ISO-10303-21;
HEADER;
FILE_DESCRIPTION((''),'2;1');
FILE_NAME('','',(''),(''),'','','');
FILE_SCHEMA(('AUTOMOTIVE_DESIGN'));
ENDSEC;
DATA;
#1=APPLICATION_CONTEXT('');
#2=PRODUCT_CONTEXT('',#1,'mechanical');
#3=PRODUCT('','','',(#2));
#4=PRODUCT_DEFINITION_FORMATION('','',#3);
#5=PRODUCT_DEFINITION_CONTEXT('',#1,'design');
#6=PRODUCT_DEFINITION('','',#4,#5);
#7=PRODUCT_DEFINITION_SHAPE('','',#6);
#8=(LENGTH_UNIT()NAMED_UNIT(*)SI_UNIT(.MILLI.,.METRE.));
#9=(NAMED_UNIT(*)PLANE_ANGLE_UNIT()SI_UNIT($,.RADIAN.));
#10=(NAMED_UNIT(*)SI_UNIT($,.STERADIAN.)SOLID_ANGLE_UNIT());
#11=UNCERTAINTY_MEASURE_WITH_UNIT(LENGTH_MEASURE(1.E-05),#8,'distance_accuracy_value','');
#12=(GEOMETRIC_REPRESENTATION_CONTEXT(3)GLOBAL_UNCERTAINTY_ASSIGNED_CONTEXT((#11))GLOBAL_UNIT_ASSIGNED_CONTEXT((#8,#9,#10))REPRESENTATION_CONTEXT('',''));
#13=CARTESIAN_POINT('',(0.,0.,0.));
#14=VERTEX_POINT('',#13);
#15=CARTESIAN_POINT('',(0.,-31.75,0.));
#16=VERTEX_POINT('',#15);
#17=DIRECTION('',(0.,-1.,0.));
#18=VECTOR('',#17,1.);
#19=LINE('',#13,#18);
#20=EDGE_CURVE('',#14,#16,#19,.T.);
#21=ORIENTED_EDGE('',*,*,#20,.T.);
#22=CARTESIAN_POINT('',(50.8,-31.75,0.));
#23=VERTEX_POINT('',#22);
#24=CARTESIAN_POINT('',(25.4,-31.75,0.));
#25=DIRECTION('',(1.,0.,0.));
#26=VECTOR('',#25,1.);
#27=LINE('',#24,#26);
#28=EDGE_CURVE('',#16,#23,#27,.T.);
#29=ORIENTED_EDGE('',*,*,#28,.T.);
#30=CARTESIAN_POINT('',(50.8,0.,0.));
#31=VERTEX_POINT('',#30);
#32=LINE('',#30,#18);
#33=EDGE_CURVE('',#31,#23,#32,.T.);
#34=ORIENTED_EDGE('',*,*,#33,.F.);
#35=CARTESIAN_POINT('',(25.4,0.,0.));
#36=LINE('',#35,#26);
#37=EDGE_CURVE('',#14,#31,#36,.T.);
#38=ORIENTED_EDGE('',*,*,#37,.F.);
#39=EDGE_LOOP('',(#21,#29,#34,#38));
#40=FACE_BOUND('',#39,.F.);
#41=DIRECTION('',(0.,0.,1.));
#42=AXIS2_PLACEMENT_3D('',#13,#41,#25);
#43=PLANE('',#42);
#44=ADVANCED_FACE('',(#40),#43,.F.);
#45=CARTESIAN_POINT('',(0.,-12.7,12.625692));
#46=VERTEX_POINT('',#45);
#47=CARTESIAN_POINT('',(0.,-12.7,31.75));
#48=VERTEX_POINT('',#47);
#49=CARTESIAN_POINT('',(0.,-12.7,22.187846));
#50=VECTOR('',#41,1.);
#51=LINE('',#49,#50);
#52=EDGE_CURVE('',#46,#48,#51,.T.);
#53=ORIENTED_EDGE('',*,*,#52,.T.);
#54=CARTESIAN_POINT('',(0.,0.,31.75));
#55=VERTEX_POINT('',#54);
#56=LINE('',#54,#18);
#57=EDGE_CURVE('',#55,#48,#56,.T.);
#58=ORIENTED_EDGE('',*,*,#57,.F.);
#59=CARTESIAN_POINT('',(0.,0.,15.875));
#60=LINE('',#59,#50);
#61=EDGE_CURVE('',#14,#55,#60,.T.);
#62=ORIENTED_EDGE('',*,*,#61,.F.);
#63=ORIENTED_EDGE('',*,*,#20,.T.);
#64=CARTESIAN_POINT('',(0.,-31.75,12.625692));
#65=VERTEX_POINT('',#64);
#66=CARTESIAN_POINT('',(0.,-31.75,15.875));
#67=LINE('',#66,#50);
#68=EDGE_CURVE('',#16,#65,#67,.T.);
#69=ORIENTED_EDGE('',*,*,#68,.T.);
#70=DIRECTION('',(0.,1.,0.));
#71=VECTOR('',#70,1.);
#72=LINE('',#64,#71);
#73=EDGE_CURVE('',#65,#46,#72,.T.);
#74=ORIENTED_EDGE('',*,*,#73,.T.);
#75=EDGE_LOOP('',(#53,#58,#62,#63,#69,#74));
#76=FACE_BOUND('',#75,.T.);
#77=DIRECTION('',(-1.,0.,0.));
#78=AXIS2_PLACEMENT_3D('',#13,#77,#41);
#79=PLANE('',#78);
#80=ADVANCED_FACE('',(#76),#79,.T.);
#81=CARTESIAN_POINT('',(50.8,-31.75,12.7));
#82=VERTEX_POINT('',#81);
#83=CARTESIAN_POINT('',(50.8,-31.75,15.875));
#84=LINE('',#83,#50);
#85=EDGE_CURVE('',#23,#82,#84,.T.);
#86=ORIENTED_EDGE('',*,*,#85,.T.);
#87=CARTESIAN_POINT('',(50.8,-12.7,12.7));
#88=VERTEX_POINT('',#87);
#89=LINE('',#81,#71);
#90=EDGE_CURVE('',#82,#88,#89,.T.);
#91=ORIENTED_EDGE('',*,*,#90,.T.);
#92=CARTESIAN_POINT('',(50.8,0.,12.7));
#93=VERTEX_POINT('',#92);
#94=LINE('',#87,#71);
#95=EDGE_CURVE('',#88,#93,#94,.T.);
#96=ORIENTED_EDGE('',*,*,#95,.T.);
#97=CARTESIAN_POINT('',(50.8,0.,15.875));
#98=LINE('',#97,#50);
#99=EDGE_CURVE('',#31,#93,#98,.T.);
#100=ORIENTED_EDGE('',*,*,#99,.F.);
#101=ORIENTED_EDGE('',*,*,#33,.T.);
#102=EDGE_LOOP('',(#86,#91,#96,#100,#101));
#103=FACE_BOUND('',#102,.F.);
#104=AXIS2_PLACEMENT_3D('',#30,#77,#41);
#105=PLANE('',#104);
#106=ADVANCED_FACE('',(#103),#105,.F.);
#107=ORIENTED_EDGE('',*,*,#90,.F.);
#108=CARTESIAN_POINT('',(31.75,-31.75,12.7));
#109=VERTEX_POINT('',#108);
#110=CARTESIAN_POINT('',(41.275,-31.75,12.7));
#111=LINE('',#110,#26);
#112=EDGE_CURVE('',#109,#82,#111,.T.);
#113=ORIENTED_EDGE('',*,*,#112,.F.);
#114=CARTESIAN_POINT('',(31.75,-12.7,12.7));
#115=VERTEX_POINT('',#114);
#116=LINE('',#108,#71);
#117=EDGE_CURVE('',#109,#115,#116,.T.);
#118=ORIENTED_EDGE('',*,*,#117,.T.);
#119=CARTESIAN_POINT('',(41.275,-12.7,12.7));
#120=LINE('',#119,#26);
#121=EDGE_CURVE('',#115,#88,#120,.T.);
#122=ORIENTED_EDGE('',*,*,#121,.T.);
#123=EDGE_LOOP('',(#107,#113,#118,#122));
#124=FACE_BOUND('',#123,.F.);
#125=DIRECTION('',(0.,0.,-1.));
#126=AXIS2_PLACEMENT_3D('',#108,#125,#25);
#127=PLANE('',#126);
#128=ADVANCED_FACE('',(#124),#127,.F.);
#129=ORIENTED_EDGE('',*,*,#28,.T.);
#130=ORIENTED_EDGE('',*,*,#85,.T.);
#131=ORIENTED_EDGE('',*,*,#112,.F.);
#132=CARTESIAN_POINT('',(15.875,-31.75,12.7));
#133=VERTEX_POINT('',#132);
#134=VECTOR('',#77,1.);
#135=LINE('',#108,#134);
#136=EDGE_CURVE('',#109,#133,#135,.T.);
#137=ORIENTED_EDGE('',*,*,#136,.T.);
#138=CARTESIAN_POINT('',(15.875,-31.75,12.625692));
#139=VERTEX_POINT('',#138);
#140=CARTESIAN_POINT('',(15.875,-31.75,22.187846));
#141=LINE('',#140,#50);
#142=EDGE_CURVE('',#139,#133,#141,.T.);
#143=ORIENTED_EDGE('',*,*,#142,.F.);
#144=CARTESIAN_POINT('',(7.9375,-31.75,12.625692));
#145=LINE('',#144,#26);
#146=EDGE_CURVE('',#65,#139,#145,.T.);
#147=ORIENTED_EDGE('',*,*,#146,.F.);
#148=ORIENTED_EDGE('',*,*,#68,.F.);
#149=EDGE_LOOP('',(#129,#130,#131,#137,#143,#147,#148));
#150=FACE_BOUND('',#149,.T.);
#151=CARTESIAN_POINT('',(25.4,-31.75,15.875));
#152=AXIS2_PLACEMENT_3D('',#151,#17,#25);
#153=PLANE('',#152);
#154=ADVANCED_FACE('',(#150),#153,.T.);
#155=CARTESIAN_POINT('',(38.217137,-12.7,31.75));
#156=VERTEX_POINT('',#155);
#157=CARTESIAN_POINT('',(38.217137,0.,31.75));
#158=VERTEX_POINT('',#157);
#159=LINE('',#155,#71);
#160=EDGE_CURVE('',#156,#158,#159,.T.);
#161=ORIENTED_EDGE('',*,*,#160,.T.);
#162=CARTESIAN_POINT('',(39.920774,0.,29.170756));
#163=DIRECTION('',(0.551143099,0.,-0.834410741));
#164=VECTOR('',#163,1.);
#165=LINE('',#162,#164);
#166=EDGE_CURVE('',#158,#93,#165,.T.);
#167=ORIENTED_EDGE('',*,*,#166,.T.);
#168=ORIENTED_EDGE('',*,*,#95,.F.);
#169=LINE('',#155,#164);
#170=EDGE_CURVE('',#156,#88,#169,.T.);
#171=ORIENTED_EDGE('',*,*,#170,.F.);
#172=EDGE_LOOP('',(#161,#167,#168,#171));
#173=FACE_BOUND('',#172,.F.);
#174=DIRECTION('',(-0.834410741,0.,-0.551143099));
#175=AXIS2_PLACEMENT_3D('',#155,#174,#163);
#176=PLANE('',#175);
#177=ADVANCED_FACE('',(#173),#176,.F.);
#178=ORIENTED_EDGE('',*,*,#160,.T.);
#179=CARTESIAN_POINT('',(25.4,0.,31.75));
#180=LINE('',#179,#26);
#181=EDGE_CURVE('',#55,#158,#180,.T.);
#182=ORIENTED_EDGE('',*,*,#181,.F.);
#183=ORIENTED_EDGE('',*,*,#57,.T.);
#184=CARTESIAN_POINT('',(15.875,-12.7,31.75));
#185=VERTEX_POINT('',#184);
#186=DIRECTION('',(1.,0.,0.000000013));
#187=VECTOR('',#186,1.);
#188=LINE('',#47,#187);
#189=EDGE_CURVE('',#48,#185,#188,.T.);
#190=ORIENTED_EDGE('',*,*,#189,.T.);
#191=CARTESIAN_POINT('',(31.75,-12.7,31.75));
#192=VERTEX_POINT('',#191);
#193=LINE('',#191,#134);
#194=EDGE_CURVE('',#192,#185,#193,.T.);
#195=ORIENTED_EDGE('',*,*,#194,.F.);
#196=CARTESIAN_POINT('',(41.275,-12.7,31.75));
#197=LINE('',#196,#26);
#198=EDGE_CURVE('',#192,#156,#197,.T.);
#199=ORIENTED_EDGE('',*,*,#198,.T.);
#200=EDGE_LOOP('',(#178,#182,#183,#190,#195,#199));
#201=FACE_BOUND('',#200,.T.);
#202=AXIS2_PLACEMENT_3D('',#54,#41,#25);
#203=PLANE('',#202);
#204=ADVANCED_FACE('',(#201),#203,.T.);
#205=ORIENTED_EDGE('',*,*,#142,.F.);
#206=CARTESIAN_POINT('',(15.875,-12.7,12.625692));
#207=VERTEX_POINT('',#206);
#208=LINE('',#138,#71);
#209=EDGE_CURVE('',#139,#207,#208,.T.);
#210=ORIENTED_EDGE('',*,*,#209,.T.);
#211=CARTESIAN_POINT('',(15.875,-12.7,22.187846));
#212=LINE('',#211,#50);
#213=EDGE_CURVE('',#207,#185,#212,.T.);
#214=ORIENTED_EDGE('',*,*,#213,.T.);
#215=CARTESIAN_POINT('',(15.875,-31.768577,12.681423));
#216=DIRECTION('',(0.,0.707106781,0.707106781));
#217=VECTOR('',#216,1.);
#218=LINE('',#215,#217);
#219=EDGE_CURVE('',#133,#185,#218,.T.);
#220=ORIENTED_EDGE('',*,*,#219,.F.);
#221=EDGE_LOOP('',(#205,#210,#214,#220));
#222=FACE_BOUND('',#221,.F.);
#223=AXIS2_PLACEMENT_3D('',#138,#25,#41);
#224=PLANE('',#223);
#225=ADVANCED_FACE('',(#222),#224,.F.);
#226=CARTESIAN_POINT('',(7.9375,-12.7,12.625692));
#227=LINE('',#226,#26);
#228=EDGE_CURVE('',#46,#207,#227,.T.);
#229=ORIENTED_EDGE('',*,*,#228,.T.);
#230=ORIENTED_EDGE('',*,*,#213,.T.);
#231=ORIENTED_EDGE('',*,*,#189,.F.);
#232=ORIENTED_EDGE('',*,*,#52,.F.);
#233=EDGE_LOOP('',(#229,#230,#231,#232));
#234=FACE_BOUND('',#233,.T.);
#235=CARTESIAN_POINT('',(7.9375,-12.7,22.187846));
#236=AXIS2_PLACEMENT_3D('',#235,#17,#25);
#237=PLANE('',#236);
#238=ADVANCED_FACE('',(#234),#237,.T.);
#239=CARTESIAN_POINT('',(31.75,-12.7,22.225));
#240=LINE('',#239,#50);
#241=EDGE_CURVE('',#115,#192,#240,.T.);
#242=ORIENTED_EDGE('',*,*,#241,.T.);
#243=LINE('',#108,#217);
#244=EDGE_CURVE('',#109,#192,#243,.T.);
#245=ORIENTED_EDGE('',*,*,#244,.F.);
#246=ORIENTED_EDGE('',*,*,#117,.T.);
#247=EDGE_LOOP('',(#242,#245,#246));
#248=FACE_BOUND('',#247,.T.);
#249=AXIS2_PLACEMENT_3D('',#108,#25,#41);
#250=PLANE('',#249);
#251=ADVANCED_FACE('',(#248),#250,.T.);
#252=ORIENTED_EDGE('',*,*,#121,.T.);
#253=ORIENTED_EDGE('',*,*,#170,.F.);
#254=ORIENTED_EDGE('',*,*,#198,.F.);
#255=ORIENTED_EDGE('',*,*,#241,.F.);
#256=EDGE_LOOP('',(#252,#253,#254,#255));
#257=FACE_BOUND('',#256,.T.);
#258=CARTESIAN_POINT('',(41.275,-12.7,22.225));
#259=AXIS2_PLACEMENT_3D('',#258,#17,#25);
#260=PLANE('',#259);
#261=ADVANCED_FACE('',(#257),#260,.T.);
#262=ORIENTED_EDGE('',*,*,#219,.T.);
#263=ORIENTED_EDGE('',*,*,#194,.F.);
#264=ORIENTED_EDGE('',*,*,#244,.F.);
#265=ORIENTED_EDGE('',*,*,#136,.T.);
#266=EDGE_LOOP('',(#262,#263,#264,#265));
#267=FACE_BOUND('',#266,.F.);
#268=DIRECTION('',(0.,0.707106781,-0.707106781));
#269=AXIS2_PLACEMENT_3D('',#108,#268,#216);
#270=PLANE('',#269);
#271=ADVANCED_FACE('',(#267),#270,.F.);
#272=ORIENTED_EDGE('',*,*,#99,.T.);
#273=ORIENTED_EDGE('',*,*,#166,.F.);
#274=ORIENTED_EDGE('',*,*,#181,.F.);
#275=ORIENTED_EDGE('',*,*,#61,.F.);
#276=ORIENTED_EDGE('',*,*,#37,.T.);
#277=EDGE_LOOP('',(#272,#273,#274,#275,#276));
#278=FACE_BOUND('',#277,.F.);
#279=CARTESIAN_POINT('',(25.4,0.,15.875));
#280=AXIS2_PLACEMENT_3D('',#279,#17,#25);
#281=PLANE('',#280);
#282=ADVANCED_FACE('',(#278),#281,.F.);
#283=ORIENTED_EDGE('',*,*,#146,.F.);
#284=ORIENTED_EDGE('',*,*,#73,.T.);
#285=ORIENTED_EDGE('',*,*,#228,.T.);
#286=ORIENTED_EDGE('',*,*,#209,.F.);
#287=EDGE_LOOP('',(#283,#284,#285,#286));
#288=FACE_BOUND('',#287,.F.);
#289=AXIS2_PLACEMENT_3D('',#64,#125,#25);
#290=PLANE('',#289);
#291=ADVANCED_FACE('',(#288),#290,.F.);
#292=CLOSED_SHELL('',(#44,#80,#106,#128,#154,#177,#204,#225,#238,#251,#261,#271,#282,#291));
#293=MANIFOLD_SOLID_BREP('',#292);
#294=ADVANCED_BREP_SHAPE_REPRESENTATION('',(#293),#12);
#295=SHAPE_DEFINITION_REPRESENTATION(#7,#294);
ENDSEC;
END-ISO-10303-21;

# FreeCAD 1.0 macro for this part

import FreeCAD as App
import Part
import Sketcher
from FreeCAD import Vector
Q = App.Units.Quantity


def add_polygon(sketch, points):
    """Adds a closed chain of lines whose ends are joined by coincident constraints."""
    first, n = sketch.GeometryCount, len(points)
    for a, b in zip(points, points[1:] + points[:1]):
        sketch.addGeometry(Part.LineSegment(App.Vector(*a, 0), App.Vector(*b, 0)), False)
    for i in range(n):
        sketch.addConstraint(Sketcher.Constraint("Coincident", first + i, 2, first + (i + 1) % n, 1))

doc = App.newDocument("Part")
body = doc.addObject("PartDesign::Body", "Body")

sketch1 = doc.addObject("Sketcher::SketchObject", "Sketch")
body.addObject(sketch1)
sketch1.AttachmentSupport = (doc.XZ_Plane, [""])
sketch1.MapMode = "FlatFace"
add_polygon(sketch1, [(0, 32), (0, 0), (51, 0), (51, 32)])
sketch1.addConstraint([
    Sketcher.Constraint("Vertical", 0),
    Sketcher.Constraint("Horizontal", 1),
    Sketcher.Constraint("Vertical", 2),
    Sketcher.Constraint("Horizontal", 3),
    Sketcher.Constraint("Coincident", 0, 2, -1, 1),
    Sketcher.Constraint("DistanceX", 1, 1, 1, 2, Q("2 in")),
    Sketcher.Constraint("DistanceY", 0, 2, 0, 1, Q("1.25 in")),
])
pad1 = doc.addObject("PartDesign::Pad", "Pad")
body.addObject(pad1)
pad1.Profile = sketch1
pad1.Length = Q("1.25 in")

sketch2 = doc.addObject("Sketcher::SketchObject", "Sketch001")
body.addObject(sketch2)
sketch2.AttachmentSupport = (doc.XZ_Plane, [""])
sketch2.MapMode = "FlatFace"
sketch2.AttachmentOffset = App.Placement(Vector(0, 0, 1.25 * 25.4), App.Rotation())
add_polygon(sketch2, [(32, 32), (32, 13), (51, 13), (51, 32)])
sketch2.addConstraint([
    Sketcher.Constraint("Vertical", 0),
    Sketcher.Constraint("Horizontal", 1),
    Sketcher.Constraint("Vertical", 2),
    Sketcher.Constraint("Horizontal", 3),
    Sketcher.Constraint("Equal", 3, 0),
    Sketcher.Constraint("DistanceX", -1, 1, 1, 2, Q("2 in")),
    Sketcher.Constraint("DistanceX", 1, 1, 1, 2, Q("0.75 in")),
    Sketcher.Constraint("DistanceY", -1, 1, 0, 2, Q("0.5 in")),
])
pocket1 = doc.addObject("PartDesign::Pocket", "Pocket")
body.addObject(pocket1)
pocket1.Profile = sketch2
pocket1.Length = Q("0.75 in")

sketch3 = doc.addObject("Sketcher::SketchObject", "Sketch002")
body.addObject(sketch3)
sketch3.AttachmentSupport = (doc.XZ_Plane, [""])
sketch3.MapMode = "FlatFace"
sketch3.AttachmentOffset = App.Placement(Vector(0, 0, 0.5 * 25.4), App.Rotation())
add_polygon(sketch3, [(51, 32), (38, 32), (51, 13)])
sketch3.addConstraint([
    Sketcher.Constraint("Horizontal", 0),
    Sketcher.Constraint("Vertical", 2),
    Sketcher.Constraint("DistanceX", -1, 1, 1, 2, Q("2 in")),
    Sketcher.Constraint("DistanceY", 2, 1, 2, 2, Q("0.75 in")),
    Sketcher.Constraint("DistanceY", -1, 1, 1, 2, Q("0.5 in")),
    Sketcher.Constraint("DistanceX", 0, 2, 0, 1, 12.582863),
])
pocket2 = doc.addObject("PartDesign::Pocket", "Pocket001")
body.addObject(pocket2)
pocket2.Profile = sketch3
pocket2.Length = Q("1 in")

sketch4 = doc.addObject("Sketcher::SketchObject", "Sketch003")
body.addObject(sketch4)
sketch4.AttachmentSupport = (doc.XZ_Plane, [""])
sketch4.MapMode = "FlatFace"
sketch4.AttachmentOffset = App.Placement(Vector(0, 0, 1.25 * 25.4), App.Rotation())
add_polygon(sketch4, [(0, 32), (0, 13), (16, 13), (16, 32)])
sketch4.addConstraint([
    Sketcher.Constraint("Vertical", 0),
    Sketcher.Constraint("Horizontal", 1),
    Sketcher.Constraint("Vertical", 2),
    Sketcher.Constraint("Horizontal", 3),
    Sketcher.Constraint("PointOnObject", 0, 2, -2),
    Sketcher.Constraint("DistanceX", 1, 1, 1, 2, Q("0.625 in")),
    Sketcher.Constraint("DistanceY", -1, 1, 2, 2, Q("1.25 in")),
    Sketcher.Constraint("DistanceY", 0, 2, 0, 1, 19.124309),
])
pocket3 = doc.addObject("PartDesign::Pocket", "Pocket002")
body.addObject(pocket3)
pocket3.Profile = sketch4
pocket3.Length = Q("0.75 in")

sketch5 = doc.addObject("Sketcher::SketchObject", "Sketch004")
body.addObject(sketch5)
sketch5.AttachmentSupport = (doc.YZ_Plane, [""])
sketch5.MapMode = "FlatFace"
sketch5.AttachmentOffset = App.Placement(Vector(0, 0, 1.25 * 25.4), App.Rotation())
add_polygon(sketch5, [(-32, 13), (-13, 32), (-32, 32)])
sketch5.addConstraint([
    Sketcher.Constraint("Horizontal", 1),
    Sketcher.Constraint("Vertical", 2),
    Sketcher.Constraint("Equal", 1, 2),
    Sketcher.Constraint("DistanceX", 1, 2, 1, 1, Q("0.75 in")),
    Sketcher.Constraint("DistanceX", 0, 2, -1, 1, Q("0.5 in")),
    Sketcher.Constraint("DistanceY", -1, 1, 2, 2, Q("0.5 in")),
])
pocket4 = doc.addObject("PartDesign::Pocket", "Pocket003")
body.addObject(pocket4)
pocket4.Profile = sketch5
pocket4.Length = Q("1 in")

doc.recompute()
